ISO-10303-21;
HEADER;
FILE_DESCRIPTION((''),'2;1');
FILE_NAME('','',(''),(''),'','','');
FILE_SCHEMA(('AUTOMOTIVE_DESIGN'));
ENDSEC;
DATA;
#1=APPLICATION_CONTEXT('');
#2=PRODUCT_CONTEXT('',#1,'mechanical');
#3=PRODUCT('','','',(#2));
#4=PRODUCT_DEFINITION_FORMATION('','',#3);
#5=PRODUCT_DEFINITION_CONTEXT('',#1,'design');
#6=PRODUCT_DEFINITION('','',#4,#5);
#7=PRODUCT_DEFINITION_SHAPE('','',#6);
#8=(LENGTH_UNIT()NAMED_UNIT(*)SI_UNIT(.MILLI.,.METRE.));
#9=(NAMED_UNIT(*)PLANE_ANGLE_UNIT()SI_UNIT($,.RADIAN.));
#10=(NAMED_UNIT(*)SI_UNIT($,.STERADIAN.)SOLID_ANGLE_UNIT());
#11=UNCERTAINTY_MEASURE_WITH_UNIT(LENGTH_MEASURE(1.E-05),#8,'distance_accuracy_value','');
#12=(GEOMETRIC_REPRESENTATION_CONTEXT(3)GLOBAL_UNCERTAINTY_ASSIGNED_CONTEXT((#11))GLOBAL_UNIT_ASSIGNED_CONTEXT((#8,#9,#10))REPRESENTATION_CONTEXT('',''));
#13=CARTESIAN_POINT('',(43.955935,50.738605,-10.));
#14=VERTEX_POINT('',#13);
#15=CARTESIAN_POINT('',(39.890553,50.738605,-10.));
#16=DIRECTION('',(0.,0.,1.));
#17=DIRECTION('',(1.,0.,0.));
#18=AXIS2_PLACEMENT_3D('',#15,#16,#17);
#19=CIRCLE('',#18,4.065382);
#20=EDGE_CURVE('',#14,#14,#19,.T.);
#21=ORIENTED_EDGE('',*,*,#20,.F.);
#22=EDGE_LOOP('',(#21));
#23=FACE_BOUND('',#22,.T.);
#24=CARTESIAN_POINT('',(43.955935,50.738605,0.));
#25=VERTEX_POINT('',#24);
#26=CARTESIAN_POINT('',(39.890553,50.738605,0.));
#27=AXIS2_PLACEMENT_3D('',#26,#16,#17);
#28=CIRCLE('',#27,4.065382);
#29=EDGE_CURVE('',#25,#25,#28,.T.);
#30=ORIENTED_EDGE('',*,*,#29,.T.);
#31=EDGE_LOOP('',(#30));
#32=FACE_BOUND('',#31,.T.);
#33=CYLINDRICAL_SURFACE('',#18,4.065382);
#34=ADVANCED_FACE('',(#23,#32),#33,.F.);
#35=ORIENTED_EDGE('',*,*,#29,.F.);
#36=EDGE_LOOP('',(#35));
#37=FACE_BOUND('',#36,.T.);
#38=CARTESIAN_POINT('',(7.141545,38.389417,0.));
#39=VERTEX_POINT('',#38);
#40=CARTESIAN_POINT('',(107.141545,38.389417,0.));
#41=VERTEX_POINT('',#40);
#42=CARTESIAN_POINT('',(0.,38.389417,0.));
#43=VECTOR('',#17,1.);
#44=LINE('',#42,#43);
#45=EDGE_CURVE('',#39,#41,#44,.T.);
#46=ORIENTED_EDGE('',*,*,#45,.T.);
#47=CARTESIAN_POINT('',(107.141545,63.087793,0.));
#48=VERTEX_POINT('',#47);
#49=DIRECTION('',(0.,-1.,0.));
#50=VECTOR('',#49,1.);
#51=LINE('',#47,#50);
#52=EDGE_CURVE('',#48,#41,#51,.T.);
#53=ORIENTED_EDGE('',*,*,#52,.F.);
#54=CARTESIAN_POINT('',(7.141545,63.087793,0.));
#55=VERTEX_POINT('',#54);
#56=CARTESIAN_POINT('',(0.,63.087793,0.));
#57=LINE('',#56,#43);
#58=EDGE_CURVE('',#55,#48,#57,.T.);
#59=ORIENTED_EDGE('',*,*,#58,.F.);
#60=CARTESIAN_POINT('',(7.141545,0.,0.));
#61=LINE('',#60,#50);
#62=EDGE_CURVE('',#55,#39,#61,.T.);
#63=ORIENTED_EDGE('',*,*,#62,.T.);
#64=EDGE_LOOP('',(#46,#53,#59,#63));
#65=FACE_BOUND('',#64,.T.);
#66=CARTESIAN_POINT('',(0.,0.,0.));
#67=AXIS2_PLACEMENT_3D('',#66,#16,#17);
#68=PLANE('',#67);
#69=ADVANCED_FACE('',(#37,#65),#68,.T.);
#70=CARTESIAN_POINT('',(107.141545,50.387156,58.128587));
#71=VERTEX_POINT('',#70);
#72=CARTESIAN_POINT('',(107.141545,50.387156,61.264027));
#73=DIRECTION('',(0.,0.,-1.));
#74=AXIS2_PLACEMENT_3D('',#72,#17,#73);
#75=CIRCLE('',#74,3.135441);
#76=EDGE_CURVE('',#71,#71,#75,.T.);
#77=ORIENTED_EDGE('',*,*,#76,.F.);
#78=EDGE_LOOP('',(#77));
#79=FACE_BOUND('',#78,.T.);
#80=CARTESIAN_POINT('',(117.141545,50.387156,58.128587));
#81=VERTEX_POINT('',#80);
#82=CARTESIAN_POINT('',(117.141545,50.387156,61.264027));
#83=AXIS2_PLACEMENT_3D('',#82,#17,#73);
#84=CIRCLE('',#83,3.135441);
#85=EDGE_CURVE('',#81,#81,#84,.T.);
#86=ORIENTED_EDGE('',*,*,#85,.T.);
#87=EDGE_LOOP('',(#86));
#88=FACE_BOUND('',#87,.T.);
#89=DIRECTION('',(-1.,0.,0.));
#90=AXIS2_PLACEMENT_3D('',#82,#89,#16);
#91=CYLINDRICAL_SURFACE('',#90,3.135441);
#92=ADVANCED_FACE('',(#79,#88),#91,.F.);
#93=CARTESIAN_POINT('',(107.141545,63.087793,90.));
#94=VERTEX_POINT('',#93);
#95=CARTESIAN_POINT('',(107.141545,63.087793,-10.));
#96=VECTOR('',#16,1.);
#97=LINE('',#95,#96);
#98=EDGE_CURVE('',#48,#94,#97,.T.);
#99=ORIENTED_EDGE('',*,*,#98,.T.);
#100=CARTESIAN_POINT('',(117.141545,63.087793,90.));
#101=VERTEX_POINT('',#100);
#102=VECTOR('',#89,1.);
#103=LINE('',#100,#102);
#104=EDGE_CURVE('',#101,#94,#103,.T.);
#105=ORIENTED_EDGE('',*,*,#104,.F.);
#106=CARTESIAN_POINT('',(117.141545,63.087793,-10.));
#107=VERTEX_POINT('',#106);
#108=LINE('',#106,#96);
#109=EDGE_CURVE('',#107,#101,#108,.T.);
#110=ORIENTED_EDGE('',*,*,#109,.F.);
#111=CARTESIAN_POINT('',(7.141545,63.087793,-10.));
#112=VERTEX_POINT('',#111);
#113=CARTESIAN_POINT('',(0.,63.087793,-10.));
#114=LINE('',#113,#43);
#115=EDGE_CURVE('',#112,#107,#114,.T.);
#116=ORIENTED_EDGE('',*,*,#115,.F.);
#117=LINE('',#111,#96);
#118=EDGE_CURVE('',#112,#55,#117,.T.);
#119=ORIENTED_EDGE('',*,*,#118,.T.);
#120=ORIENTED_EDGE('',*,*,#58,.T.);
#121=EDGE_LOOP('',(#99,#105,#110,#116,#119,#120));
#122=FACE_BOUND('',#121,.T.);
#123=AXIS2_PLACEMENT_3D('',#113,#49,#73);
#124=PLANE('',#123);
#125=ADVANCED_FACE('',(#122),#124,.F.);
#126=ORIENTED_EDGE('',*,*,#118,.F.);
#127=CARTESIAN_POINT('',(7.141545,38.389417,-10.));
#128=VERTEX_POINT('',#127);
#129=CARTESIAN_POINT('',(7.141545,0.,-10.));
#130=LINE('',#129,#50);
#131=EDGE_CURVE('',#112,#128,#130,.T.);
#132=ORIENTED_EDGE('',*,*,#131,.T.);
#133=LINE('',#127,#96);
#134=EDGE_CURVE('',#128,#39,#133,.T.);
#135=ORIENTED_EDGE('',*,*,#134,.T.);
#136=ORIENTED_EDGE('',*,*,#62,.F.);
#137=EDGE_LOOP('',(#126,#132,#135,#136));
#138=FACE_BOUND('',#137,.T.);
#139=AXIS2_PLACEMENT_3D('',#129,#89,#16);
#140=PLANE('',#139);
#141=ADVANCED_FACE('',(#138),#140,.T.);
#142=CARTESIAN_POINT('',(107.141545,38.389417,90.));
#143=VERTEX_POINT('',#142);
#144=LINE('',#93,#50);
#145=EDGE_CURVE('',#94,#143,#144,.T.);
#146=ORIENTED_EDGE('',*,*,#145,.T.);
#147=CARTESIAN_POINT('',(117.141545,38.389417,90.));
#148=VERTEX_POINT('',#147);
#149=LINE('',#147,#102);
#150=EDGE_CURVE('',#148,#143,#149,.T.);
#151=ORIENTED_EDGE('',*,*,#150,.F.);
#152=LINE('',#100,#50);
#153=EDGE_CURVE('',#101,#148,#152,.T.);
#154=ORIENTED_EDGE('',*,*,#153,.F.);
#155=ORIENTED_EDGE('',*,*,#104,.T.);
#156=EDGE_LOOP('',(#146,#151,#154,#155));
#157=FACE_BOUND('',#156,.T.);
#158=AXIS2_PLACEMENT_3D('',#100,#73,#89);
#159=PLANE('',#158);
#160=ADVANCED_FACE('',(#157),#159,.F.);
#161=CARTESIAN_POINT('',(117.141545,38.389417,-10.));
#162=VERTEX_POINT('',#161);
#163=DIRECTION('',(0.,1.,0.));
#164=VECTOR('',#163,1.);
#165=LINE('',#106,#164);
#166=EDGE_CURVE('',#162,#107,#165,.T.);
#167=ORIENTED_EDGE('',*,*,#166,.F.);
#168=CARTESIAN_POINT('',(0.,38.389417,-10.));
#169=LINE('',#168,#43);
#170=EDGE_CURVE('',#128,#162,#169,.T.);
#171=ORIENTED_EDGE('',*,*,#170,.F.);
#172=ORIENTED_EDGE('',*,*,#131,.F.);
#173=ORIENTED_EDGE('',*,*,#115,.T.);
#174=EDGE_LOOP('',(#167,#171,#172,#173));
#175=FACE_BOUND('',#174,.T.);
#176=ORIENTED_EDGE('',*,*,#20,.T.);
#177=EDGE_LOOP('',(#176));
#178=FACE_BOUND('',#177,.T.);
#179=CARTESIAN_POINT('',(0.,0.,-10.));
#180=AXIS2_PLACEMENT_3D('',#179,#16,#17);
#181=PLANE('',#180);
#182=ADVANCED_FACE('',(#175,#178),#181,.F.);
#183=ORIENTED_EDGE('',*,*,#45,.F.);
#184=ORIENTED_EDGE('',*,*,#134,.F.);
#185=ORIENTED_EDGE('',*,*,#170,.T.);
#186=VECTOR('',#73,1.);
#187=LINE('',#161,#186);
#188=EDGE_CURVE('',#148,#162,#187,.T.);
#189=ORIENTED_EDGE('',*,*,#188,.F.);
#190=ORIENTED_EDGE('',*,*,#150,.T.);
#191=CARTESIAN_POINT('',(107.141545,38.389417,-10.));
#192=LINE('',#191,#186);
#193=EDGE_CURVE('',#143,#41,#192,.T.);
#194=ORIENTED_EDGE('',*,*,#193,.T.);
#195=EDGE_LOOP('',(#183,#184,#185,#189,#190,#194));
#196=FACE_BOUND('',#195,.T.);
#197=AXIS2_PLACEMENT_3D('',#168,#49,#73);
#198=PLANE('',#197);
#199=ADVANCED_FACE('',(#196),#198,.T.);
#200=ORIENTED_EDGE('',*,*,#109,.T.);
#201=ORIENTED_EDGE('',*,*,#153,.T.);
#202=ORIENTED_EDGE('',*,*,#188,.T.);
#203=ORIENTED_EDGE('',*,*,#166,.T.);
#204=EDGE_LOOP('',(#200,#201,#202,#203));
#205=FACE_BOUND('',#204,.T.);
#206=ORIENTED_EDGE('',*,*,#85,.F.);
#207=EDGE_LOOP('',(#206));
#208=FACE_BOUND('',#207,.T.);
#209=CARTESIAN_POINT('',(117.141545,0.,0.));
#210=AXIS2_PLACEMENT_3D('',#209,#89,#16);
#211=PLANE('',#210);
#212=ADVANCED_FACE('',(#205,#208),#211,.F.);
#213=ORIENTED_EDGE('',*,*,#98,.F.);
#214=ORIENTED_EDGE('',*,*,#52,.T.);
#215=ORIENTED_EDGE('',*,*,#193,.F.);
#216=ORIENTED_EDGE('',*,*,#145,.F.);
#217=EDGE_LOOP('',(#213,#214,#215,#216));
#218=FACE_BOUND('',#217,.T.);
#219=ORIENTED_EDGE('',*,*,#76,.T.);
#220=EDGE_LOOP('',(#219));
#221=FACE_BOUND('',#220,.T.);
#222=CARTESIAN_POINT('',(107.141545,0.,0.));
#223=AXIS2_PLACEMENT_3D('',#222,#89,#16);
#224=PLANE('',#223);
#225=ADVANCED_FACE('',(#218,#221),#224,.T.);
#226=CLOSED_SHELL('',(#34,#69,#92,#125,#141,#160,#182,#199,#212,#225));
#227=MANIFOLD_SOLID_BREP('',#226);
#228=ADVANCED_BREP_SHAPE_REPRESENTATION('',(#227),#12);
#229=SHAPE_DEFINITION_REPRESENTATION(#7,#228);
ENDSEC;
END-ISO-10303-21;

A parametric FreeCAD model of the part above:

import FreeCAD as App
import Part
import Sketcher

V = App.Vector
Q = App.Units.Quantity

doc = App.newDocument("Part")
params = doc.addObject("Spreadsheet::Sheet", "Params")
for row, (alias, value) in enumerate([
    ("pad1_length", "10 mm"),
    ("pad2_length", "10 mm"),
    ("sketch3_height", "100 mm"),
    ("pad3_length", "10 mm"),
], start=1):
    params.set(f"A{row}", alias)
    params.set(f"B{row}", "=" + value)
    params.setAlias(f"B{row}", alias)

body = doc.addObject("PartDesign::Body", "Body")

sketch1 = body.newObject("Sketcher::SketchObject", "Sketch")
sketch1.AttachmentSupport = (doc.getObject("XY_Plane"), [""])
sketch1.MapMode = "FlatFace"
sketch1.addGeometry(Part.LineSegment(V(7.1, 63.1, 0), V(7.1, 38.4, 0)), False)
sketch1.addGeometry(Part.LineSegment(V(7.1, 38.4, 0), V(72.6, 38.4, 0)), False)
sketch1.addGeometry(Part.LineSegment(V(72.6, 38.4, 0), V(72.6, 63.1, 0)), False)
sketch1.addGeometry(Part.LineSegment(V(72.6, 63.1, 0), V(7.1, 63.1, 0)), False)
sketch1.addGeometry(Part.Circle(V(39.9, 50.7, 0), V(0, 0, 1), 4.1), False)
sketch1.addConstraint(Sketcher.Constraint("Coincident", 0, 2, 1, 1))
sketch1.addConstraint(Sketcher.Constraint("Coincident", 1, 2, 2, 1))
sketch1.addConstraint(Sketcher.Constraint("Coincident", 2, 2, 3, 1))
sketch1.addConstraint(Sketcher.Constraint("Coincident", 3, 2, 0, 1))
sketch1.addConstraint(Sketcher.Constraint("Vertical", 0))
sketch1.addConstraint(Sketcher.Constraint("Horizontal", 1))
sketch1.addConstraint(Sketcher.Constraint("Vertical", 2))
sketch1.addConstraint(Sketcher.Constraint("Horizontal", 3))
sketch1.addConstraint(Sketcher.Constraint("Diameter", 4, Q("8.130763 mm")))
sketch1.addConstraint(Sketcher.Constraint("DistanceX", 1, 1, 1, 2, Q("65.498017 mm")))
sketch1.addConstraint(Sketcher.Constraint("DistanceY", 0, 2, 0, 1, Q("24.698376 mm")))
sketch1.addConstraint(Sketcher.Constraint("DistanceX", -1, 1, 1, 2, Q("72.639562 mm")))
sketch1.addConstraint(Sketcher.Constraint("DistanceX", 0, 2, 4, 3, Q("32.749009 mm")))
sketch1.addConstraint(Sketcher.Constraint("DistanceY", -1, 1, 4, 3, Q("50.738605 mm")))
sketch1.addConstraint(Sketcher.Constraint("DistanceY", -1, 1, 0, 2, Q("38.389417 mm")))
pad1 = body.newObject("PartDesign::Pad", "Pad")
pad1.Profile = sketch1
pad1.setExpression("Length", "Params.pad1_length")
pad1.Reversed = True

sketch2 = body.newObject("Sketcher::SketchObject", "Sketch001")
sketch2.AttachmentSupport = (doc.getObject("XY_Plane"), [""])
sketch2.MapMode = "FlatFace"
sketch2.AttachmentOffset = App.Placement(V(0, 0, -10), App.Rotation())
sketch2.addGeometry(Part.LineSegment(V(107, 63, 0), V(107, 38, 0)), False)
sketch2.addGeometry(Part.LineSegment(V(107, 38, 0), V(73, 38, 0)), False)
sketch2.addGeometry(Part.LineSegment(V(73, 38, 0), V(73, 63, 0)), False)
sketch2.addGeometry(Part.LineSegment(V(73, 63, 0), V(107, 63, 0)), False)
sketch2.addConstraint(Sketcher.Constraint("Coincident", 0, 2, 1, 1))
sketch2.addConstraint(Sketcher.Constraint("Coincident", 1, 2, 2, 1))
sketch2.addConstraint(Sketcher.Constraint("Coincident", 2, 2, 3, 1))
sketch2.addConstraint(Sketcher.Constraint("Coincident", 3, 2, 0, 1))
sketch2.addConstraint(Sketcher.Constraint("Vertical", 0))
sketch2.addConstraint(Sketcher.Constraint("Horizontal", 1))
sketch2.addConstraint(Sketcher.Constraint("Vertical", 2))
sketch2.addConstraint(Sketcher.Constraint("Horizontal", 3))
sketch2.addConstraint(Sketcher.Constraint("DistanceX", 1, 2, 1, 1, Q("34.501983 mm")))
sketch2.addConstraint(Sketcher.Constraint("DistanceY", 0, 2, 0, 1, Q("24.698376 mm")))
sketch2.addConstraint(Sketcher.Constraint("DistanceX", -1, 1, 1, 2, Q("72.639562 mm")))
sketch2.addConstraint(Sketcher.Constraint("DistanceY", -1, 1, 0, 2, Q("38.389417 mm")))
pad2 = body.newObject("PartDesign::Pad", "Pad001")
pad2.Profile = sketch2
pad2.setExpression("Length", "Params.pad2_length")

sketch3 = body.newObject("Sketcher::SketchObject", "Sketch002")
sketch3.AttachmentSupport = (doc.getObject("YZ_Plane"), [""])
sketch3.MapMode = "FlatFace"
sketch3.AttachmentOffset = App.Placement(V(0, 0, 107.141545), App.Rotation())
sketch3.addGeometry(Part.LineSegment(V(63.1, 90, 0), V(38.4, 90, 0)), False)
sketch3.addGeometry(Part.LineSegment(V(38.4, 90, 0), V(38.4, -10, 0)), False)
sketch3.addGeometry(Part.LineSegment(V(38.4, -10, 0), V(63.1, -10, 0)), False)
sketch3.addGeometry(Part.LineSegment(V(63.1, -10, 0), V(63.1, 90, 0)), False)
sketch3.addGeometry(Part.Circle(V(50.4, 61.3, 0), V(0, 0, 1), 3.1), False)
sketch3.addConstraint(Sketcher.Constraint("Coincident", 0, 2, 1, 1))
sketch3.addConstraint(Sketcher.Constraint("Coincident", 1, 2, 2, 1))
sketch3.addConstraint(Sketcher.Constraint("Coincident", 2, 2, 3, 1))
sketch3.addConstraint(Sketcher.Constraint("Coincident", 3, 2, 0, 1))
sketch3.addConstraint(Sketcher.Constraint("Horizontal", 0))
sketch3.addConstraint(Sketcher.Constraint("Vertical", 1))
sketch3.addConstraint(Sketcher.Constraint("Horizontal", 2))
sketch3.addConstraint(Sketcher.Constraint("Vertical", 3))
sketch3.addConstraint(Sketcher.Constraint("DistanceY", 1, 2, 1, 1, Q("100 mm")))
sketch3.addConstraint(Sketcher.Constraint("DistanceY", -1, 1, 0, 2, Q("90 mm")))
sketch3.addConstraint(Sketcher.Constraint("Diameter", 4, Q("6.270881 mm")))
sketch3.addConstraint(Sketcher.Constraint("DistanceX", 0, 2, 0, 1, Q("24.698376 mm")))
sketch3.addConstraint(Sketcher.Constraint("DistanceX", 0, 2, 4, 3, Q("11.997738 mm")))
sketch3.addConstraint(Sketcher.Constraint("DistanceX", -1, 1, 4, 3, Q("50.387156 mm")))
sketch3.addConstraint(Sketcher.Constraint("DistanceY", -1, 1, 4, 3, Q("61.264027 mm")))
sketch3.setExpression("Constraints[8]", "Params.sketch3_height")
pad3 = body.newObject("PartDesign::Pad", "Pad002")
pad3.Profile = sketch3
pad3.setExpression("Length", "Params.pad3_length")

doc.recompute()
